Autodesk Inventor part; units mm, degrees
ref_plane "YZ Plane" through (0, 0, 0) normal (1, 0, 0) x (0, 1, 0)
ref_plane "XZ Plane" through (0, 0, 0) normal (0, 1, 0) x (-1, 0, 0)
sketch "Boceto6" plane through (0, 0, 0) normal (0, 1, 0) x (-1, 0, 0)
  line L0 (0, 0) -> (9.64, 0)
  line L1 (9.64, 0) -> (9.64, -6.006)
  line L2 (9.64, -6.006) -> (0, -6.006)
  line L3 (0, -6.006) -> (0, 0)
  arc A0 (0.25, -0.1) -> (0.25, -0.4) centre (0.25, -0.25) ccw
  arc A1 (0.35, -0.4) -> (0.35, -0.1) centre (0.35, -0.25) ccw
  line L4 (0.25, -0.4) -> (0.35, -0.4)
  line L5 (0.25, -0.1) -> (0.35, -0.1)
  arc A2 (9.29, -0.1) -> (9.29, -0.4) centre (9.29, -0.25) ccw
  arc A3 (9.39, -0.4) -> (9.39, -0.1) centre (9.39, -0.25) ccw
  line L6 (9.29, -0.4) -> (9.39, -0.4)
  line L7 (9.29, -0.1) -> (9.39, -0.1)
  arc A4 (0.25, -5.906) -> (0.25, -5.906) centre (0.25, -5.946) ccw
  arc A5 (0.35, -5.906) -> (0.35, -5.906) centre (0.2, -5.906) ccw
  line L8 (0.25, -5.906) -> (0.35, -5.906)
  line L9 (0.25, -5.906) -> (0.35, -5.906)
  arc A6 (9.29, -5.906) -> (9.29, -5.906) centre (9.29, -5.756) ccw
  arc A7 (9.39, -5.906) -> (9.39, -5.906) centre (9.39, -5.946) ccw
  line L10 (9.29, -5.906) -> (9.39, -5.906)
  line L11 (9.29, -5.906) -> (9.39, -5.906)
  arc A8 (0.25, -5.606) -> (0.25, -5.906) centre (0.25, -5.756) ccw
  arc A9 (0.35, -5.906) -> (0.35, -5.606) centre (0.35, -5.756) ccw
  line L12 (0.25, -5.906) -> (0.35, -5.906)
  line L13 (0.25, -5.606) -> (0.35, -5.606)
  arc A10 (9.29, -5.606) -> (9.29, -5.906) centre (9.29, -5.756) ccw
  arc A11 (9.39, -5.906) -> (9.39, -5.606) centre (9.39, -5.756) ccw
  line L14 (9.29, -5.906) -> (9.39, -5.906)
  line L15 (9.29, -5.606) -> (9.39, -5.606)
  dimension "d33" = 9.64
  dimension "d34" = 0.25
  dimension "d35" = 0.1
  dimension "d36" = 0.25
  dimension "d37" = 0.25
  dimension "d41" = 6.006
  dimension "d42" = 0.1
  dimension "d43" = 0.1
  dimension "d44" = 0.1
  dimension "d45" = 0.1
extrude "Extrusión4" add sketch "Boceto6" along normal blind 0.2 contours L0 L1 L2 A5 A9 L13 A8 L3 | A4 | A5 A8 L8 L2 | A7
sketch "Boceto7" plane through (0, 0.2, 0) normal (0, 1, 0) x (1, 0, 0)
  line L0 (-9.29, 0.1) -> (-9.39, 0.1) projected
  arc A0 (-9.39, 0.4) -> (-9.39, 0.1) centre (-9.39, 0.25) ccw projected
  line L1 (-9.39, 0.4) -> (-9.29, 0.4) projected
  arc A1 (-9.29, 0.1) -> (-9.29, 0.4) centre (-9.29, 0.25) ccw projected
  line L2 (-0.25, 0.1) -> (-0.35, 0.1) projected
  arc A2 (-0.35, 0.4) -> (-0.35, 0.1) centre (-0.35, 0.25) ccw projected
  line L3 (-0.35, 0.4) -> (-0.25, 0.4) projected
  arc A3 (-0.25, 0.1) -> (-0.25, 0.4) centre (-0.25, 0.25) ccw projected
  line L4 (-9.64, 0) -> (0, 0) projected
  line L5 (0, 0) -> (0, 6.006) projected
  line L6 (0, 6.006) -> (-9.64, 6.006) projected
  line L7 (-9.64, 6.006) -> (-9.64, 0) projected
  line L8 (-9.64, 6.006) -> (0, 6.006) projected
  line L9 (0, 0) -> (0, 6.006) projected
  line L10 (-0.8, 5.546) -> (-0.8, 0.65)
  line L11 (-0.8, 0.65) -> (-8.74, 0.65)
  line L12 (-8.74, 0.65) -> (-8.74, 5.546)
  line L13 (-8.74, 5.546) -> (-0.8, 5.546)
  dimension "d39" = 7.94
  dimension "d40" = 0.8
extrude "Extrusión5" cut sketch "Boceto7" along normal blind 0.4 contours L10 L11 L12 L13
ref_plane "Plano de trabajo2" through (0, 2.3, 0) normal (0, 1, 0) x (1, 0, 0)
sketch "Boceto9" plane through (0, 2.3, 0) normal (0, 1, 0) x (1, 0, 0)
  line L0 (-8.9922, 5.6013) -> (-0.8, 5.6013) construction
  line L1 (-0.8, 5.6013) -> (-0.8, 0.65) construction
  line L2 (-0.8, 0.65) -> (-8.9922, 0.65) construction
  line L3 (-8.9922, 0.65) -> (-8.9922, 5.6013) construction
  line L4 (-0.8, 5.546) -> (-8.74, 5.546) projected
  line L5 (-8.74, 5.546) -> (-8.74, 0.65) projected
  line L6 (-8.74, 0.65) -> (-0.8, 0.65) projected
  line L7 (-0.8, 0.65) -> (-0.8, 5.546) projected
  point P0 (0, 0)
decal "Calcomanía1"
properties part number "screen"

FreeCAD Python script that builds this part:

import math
import FreeCAD as App
import Part
import Sketcher
Q = App.Units.Quantity

doc = App.newDocument("Part")
params = doc.addObject("Spreadsheet::Sheet", "Params")
for row, (alias, value) in enumerate([
    ("sketch1_width", "0.1 mm"),
    ("sketch1_width2", "9.64 mm"),
    ("pad1_length", "0.2 mm"),
    ("sketch2_width", "7.94 mm"),
    ("pocket1_length", "0.4 mm"),
], start=1):
    params.set(f"A{row}", alias)
    params.set(f"B{row}", "=" + value)
    params.setAlias(f"B{row}", alias)

body = doc.addObject("PartDesign::Body", "Body")

sketch1 = body.newObject("Sketcher::SketchObject", "Sketch")
sketch1.AttachmentSupport = (doc.getObject("XZ_Plane"), [""])
sketch1.MapMode = "FlatFace"
sketch1.addGeometry(Part.LineSegment(App.Vector(-9.64, 0, 0), App.Vector(0, 0, 0)), False)
sketch1.addGeometry(Part.LineSegment(App.Vector(0, 0, 0), App.Vector(0, -6.01, 0)), False)
sketch1.addGeometry(Part.LineSegment(App.Vector(0, -6.01, 0), App.Vector(-9.64, -6.01, 0)), False)
sketch1.addGeometry(Part.LineSegment(App.Vector(-9.64, -6.01, 0), App.Vector(-9.64, 0, 0)), False)
sketch1.addGeometry(Part.ArcOfCircle(Part.Circle(App.Vector(-0.35, -5.76, 0), App.Vector(0, 0, 1), 0.15), math.radians(90), math.radians(270)), False)
sketch1.addGeometry(Part.LineSegment(App.Vector(-0.35, -5.91, 0), App.Vector(-0.25, -5.91, 0)), False)
sketch1.addGeometry(Part.ArcOfCircle(Part.Circle(App.Vector(-0.25, -5.76, 0), App.Vector(0, 0, 1), 0.15), math.radians(-90), math.radians(90)), False)
sketch1.addGeometry(Part.LineSegment(App.Vector(-0.25, -5.61, 0), App.Vector(-0.35, -5.61, 0)), False)
sketch1.addGeometry(Part.ArcOfCircle(Part.Circle(App.Vector(-9.29, -5.76, 0), App.Vector(0, 0, 1), 0.15), math.radians(-90), math.radians(90)), False)
sketch1.addGeometry(Part.LineSegment(App.Vector(-9.29, -5.61, 0), App.Vector(-9.39, -5.61, 0)), False)
sketch1.addGeometry(Part.ArcOfCircle(Part.Circle(App.Vector(-9.39, -5.76, 0), App.Vector(0, 0, 1), 0.15), math.radians(90), math.radians(270)), False)
sketch1.addGeometry(Part.LineSegment(App.Vector(-9.39, -5.91, 0), App.Vector(-9.29, -5.91, 0)), False)
sketch1.addGeometry(Part.ArcOfCircle(Part.Circle(App.Vector(-0.25, -0.25, 0), App.Vector(0, 0, 1), 0.15), math.radians(-90), math.radians(90)), False)
sketch1.addGeometry(Part.LineSegment(App.Vector(-0.25, -0.1, 0), App.Vector(-0.35, -0.1, 0)), False)
sketch1.addGeometry(Part.ArcOfCircle(Part.Circle(App.Vector(-0.35, -0.25, 0), App.Vector(0, 0, 1), 0.15), math.radians(90), math.radians(270)), False)
sketch1.addGeometry(Part.LineSegment(App.Vector(-0.35, -0.4, 0), App.Vector(-0.25, -0.4, 0)), False)
sketch1.addGeometry(Part.ArcOfCircle(Part.Circle(App.Vector(-9.29, -0.25, 0), App.Vector(0, 0, 1), 0.15), math.radians(-90), math.radians(90)), False)
sketch1.addGeometry(Part.LineSegment(App.Vector(-9.29, -0.1, 0), App.Vector(-9.39, -0.1, 0)), False)
sketch1.addGeometry(Part.ArcOfCircle(Part.Circle(App.Vector(-9.39, -0.25, 0), App.Vector(0, 0, 1), 0.15), math.radians(90), math.radians(270)), False)
sketch1.addGeometry(Part.LineSegment(App.Vector(-9.39, -0.4, 0), App.Vector(-9.29, -0.4, 0)), False)
sketch1.addConstraint(Sketcher.Constraint("Coincident", 0, 2, 1, 1))
sketch1.addConstraint(Sketcher.Constraint("Coincident", 1, 2, 2, 1))
sketch1.addConstraint(Sketcher.Constraint("Coincident", 2, 2, 3, 1))
sketch1.addConstraint(Sketcher.Constraint("Coincident", 3, 2, 0, 1))
sketch1.addConstraint(Sketcher.Constraint("Tangent", 4, 2, 5, 1))
sketch1.addConstraint(Sketcher.Constraint("Tangent", 5, 2, 6, 1))
sketch1.addConstraint(Sketcher.Constraint("Tangent", 6, 2, 7, 1))
sketch1.addConstraint(Sketcher.Constraint("Tangent", 7, 2, 4, 1))
sketch1.addConstraint(Sketcher.Constraint("Tangent", 8, 2, 9, 1))
sketch1.addConstraint(Sketcher.Constraint("Tangent", 9, 2, 10, 1))
sketch1.addConstraint(Sketcher.Constraint("Tangent", 10, 2, 11, 1))
sketch1.addConstraint(Sketcher.Constraint("Tangent", 11, 2, 8, 1))
sketch1.addConstraint(Sketcher.Constraint("Tangent", 12, 2, 13, 1))
sketch1.addConstraint(Sketcher.Constraint("Tangent", 13, 2, 14, 1))
sketch1.addConstraint(Sketcher.Constraint("Tangent", 14, 2, 15, 1))
sketch1.addConstraint(Sketcher.Constraint("Tangent", 15, 2, 12, 1))
sketch1.addConstraint(Sketcher.Constraint("Tangent", 16, 2, 17, 1))
sketch1.addConstraint(Sketcher.Constraint("Tangent", 17, 2, 18, 1))
sketch1.addConstraint(Sketcher.Constraint("Tangent", 18, 2, 19, 1))
sketch1.addConstraint(Sketcher.Constraint("Tangent", 19, 2, 16, 1))
sketch1.addConstraint(Sketcher.Constraint("Horizontal", 0))
sketch1.addConstraint(Sketcher.Constraint("Vertical", 1))
sketch1.addConstraint(Sketcher.Constraint("Horizontal", 2))
sketch1.addConstraint(Sketcher.Constraint("Vertical", 3))
sketch1.addConstraint(Sketcher.Constraint("Horizontal", 5))
sketch1.addConstraint(Sketcher.Constraint("Horizontal", 7))
sketch1.addConstraint(Sketcher.Constraint("Horizontal", 9))
sketch1.addConstraint(Sketcher.Constraint("Horizontal", 11))
sketch1.addConstraint(Sketcher.Constraint("Horizontal", 13))
sketch1.addConstraint(Sketcher.Constraint("Horizontal", 15))
sketch1.addConstraint(Sketcher.Constraint("Horizontal", 17))
sketch1.addConstraint(Sketcher.Constraint("Horizontal", 19))
sketch1.addConstraint(Sketcher.Constraint("Coincident", 0, 2, -1, 1))
sketch1.addConstraint(Sketcher.Constraint("Equal", 6, 8))
sketch1.addConstraint(Sketcher.Constraint("Equal", 10, 12))
sketch1.addConstraint(Sketcher.Constraint("Equal", 14, 16))
sketch1.addConstraint(Sketcher.Constraint("Horizontal", 6, 3, 8, 3))
sketch1.addConstraint(Sketcher.Constraint("Horizontal", 14, 3, 16, 3))
sketch1.addConstraint(Sketcher.Constraint("Vertical", 6, 3, 12, 3))
sketch1.addConstraint(Sketcher.Constraint("Vertical", 4, 3, 14, 3))
sketch1.addConstraint(Sketcher.Constraint("Vertical", 8, 3, 16, 3))
sketch1.addConstraint(Sketcher.Constraint("Vertical", 10, 3, 18, 3))
sketch1.addConstraint(Sketcher.Constraint("Equal", 7, 9))
sketch1.addConstraint(Sketcher.Constraint("DistanceX", 5, 1, 5, 2, Q("0.1 mm")))
sketch1.addConstraint(Sketcher.Constraint("DistanceX", 0, 1, 0, 2, Q("9.64 mm")))
sketch1.addConstraint(Sketcher.Constraint("DistanceY", 12, 2, -1, 1, Q("0.1 mm")))
sketch1.addConstraint(Sketcher.Constraint("DistanceY", 1, 2, 4, 2, Q("0.1 mm")))
sketch1.addConstraint(Sketcher.Constraint("DistanceY", 1, 2, 1, 1, Q("6.006 mm")))
sketch1.addConstraint(Sketcher.Constraint("DistanceX", 6, 3, -1, 1, Q("0.25 mm")))
sketch1.addConstraint(Sketcher.Constraint("DistanceY", 12, 3, -1, 1, Q("0.25 mm")))
sketch1.addConstraint(Sketcher.Constraint("DistanceX", 2, 2, 10, 3, Q("0.25 mm")))
sketch1.setExpression("Constraints[43]", "Params.sketch1_width")
sketch1.setExpression("Constraints[44]", "Params.sketch1_width2")
pad1 = body.newObject("PartDesign::Pad", "Pad")
pad1.Profile = sketch1
pad1.setExpression("Length", "Params.pad1_length")
pad1.Reversed = True

sketch2 = body.newObject("Sketcher::SketchObject", "Sketch001")
sketch2.AttachmentSupport = (doc.getObject("XZ_Plane"), [""])
sketch2.MapMode = "FlatFace"
sketch2.AttachmentOffset = App.Placement(App.Vector(0, 0, -0.2), App.Rotation())
sketch2.addGeometry(Part.LineSegment(App.Vector(-0.8, -0.7, 0), App.Vector(-0.8, -5.5, 0)), False)
sketch2.addGeometry(Part.LineSegment(App.Vector(-0.8, -5.5, 0), App.Vector(-8.7, -5.5, 0)), False)
sketch2.addGeometry(Part.LineSegment(App.Vector(-8.7, -5.5, 0), App.Vector(-8.7, -0.7, 0)), False)
sketch2.addGeometry(Part.LineSegment(App.Vector(-8.7, -0.7, 0), App.Vector(-0.8, -0.7, 0)), False)
sketch2.addConstraint(Sketcher.Constraint("Coincident", 0, 2, 1, 1))
sketch2.addConstraint(Sketcher.Constraint("Coincident", 1, 2, 2, 1))
sketch2.addConstraint(Sketcher.Constraint("Coincident", 2, 2, 3, 1))
sketch2.addConstraint(Sketcher.Constraint("Coincident", 3, 2, 0, 1))
sketch2.addConstraint(Sketcher.Constraint("Vertical", 0))
sketch2.addConstraint(Sketcher.Constraint("Horizontal", 1))
sketch2.addConstraint(Sketcher.Constraint("Vertical", 2))
sketch2.addConstraint(Sketcher.Constraint("Horizontal", 3))
sketch2.addConstraint(Sketcher.Constraint("DistanceX", 1, 2, 1, 1, Q("7.94 mm")))
sketch2.addConstraint(Sketcher.Constraint("DistanceX", 0, 2, -1, 1, Q("0.8 mm")))
sketch2.addConstraint(Sketcher.Constraint("DistanceY", 0, 2, 0, 1, Q("4.896 mm")))
sketch2.addConstraint(Sketcher.Constraint("DistanceY", 2, 2, -1, 1, Q("0.65 mm")))
sketch2.setExpression("Constraints[8]", "Params.sketch2_width")
pocket1 = body.newObject("PartDesign::Pocket", "Pocket")
pocket1.Profile = sketch2
pocket1.setExpression("Length", "Params.pocket1_length")

doc.recompute()
